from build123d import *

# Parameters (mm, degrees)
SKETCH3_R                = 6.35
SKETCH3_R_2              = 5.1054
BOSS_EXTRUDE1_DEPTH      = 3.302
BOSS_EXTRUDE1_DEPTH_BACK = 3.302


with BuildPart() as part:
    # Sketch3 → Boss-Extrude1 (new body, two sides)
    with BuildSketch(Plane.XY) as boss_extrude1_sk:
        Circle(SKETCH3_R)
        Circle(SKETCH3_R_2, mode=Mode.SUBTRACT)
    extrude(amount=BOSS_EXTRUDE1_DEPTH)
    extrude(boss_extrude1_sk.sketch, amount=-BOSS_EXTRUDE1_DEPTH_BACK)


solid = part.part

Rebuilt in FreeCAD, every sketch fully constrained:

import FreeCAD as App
import Part
import Sketcher

V = App.Vector
Q = App.Units.Quantity

doc = App.newDocument("Part")
body = doc.addObject("PartDesign::Body", "Body")

sketch1 = body.newObject("Sketcher::SketchObject", "Sketch")
sketch1.AttachmentSupport = (doc.getObject("XY_Plane"), [""])
sketch1.MapMode = "FlatFace"
sketch1.addGeometry(Part.Circle(V(0, 0, 0), V(0, 0, 1), 6), False)
sketch1.addGeometry(Part.Circle(V(0, 0, 0), V(0, 0, 1), 5), False)
sketch1.addConstraint(Sketcher.Constraint("Coincident", 0, 3, -1, 1))
sketch1.addConstraint(Sketcher.Constraint("Coincident", 1, 3, -1, 1))
sketch1.addConstraint(Sketcher.Constraint("Diameter", 0, Q("0.5 in")))
sketch1.addConstraint(Sketcher.Constraint("Diameter", 1, Q("0.402 in")))
pad1 = body.newObject("PartDesign::Pad", "Pad")
pad1.Profile = sketch1
pad1.Type = "TwoLengths"
pad1.Length = Q("0.13 in")
pad1.Length2 = Q("0.13 in")

doc.recompute()
